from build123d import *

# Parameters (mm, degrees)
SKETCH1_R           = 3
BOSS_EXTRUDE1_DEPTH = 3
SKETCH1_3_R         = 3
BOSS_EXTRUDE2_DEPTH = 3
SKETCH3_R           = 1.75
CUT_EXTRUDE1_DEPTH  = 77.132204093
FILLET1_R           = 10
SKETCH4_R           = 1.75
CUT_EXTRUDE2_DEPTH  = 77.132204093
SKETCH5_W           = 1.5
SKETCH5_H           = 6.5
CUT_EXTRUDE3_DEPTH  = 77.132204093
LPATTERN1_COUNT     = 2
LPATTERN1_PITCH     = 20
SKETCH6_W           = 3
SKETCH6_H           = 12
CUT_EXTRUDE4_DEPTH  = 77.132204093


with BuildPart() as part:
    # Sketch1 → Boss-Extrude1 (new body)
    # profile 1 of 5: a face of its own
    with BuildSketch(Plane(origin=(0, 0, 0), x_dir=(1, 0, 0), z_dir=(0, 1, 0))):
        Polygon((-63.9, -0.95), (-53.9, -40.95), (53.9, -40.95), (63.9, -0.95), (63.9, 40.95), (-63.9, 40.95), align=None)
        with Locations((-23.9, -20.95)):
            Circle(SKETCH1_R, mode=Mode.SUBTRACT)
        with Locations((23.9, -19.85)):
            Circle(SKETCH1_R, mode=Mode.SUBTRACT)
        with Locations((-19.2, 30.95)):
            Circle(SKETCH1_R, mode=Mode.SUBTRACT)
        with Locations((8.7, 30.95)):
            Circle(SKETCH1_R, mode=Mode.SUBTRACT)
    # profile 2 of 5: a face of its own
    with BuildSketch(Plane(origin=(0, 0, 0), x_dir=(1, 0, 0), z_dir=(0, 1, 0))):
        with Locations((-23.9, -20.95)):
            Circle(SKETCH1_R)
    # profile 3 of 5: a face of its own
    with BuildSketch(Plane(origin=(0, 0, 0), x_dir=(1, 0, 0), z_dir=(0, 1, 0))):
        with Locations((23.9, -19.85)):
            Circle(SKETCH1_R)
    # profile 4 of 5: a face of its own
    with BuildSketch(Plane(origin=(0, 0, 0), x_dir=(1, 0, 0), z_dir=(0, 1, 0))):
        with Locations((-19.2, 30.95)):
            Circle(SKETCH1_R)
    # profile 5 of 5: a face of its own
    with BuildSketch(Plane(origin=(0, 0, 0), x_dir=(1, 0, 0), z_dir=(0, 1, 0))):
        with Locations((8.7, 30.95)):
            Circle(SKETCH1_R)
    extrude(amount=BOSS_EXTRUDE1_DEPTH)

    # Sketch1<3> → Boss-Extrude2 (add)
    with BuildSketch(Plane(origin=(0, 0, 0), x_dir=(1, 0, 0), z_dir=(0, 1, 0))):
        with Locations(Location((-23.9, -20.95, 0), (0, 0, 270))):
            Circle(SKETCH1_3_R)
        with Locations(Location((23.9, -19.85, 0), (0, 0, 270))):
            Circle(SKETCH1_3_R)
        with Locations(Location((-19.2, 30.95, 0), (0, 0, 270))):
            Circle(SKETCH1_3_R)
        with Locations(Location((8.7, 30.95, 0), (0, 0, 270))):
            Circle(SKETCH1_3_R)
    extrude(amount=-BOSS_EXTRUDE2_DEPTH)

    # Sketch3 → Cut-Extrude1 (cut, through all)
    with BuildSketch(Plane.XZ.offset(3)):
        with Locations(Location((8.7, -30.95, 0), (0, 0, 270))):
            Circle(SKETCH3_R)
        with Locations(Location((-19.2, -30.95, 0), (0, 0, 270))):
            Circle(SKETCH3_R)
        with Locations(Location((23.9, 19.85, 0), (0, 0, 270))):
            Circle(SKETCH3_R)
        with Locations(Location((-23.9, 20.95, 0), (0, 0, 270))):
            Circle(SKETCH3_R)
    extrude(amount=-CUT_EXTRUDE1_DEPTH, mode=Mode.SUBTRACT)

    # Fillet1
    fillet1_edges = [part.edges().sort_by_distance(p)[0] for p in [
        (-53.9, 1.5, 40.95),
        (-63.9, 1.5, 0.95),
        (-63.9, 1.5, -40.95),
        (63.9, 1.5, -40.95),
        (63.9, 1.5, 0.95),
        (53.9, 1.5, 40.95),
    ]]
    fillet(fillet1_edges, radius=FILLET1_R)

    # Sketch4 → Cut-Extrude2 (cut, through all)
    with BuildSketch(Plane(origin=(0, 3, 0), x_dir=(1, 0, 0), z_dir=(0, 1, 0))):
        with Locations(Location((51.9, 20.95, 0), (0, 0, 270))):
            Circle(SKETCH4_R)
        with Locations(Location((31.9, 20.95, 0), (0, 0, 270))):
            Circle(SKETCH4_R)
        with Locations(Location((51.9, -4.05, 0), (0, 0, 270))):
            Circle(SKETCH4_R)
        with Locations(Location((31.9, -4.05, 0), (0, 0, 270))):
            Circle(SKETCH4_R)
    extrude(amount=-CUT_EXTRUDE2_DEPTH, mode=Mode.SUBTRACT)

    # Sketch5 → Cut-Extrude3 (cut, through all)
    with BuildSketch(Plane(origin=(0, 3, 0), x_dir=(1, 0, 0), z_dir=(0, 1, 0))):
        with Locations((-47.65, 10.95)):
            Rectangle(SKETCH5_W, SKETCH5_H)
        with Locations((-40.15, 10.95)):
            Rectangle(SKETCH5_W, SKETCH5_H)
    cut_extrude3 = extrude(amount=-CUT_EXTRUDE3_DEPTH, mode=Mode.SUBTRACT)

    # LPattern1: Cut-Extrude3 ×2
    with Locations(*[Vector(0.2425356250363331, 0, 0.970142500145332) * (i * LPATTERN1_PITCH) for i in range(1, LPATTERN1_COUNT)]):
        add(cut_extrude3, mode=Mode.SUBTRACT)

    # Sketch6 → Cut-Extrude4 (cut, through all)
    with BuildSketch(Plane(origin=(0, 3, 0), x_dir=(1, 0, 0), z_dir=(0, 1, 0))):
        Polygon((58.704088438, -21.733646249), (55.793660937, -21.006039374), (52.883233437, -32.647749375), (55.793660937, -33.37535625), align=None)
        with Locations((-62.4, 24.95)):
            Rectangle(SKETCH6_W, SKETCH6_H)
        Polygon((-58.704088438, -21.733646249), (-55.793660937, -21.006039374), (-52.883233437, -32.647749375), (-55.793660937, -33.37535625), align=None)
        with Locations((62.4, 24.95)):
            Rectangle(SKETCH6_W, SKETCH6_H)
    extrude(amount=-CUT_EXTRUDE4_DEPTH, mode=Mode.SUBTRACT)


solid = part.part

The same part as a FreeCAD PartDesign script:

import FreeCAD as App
import Part
import Sketcher

V = App.Vector


def edges_at(feature, points):
    """Names of the edges that pass closest to the given points."""
    edges = feature.Shape.Edges
    near = lambda p: min(range(len(edges)), key=lambda i: edges[i].distToShape(Part.Vertex(*p))[0])
    return sorted({f"Edge{near(p) + 1}" for p in points})

doc = App.newDocument("Part")
body = doc.addObject("PartDesign::Body", "Body")

sketch1 = doc.addObject("Sketcher::SketchObject", "Sketch")
body.addObject(sketch1)
sketch1.AttachmentSupport = (doc.XZ_Plane, [""])
sketch1.MapMode = "FlatFace"
sketch1.addGeometry([
    Part.LineSegment(V(-64, 1, 0), V(-54, 41, 0)),
    Part.LineSegment(V(-54, 41, 0), V(54, 41, 0)),
    Part.LineSegment(V(54, 41, 0), V(64, 1, 0)),
    Part.LineSegment(V(64, 1, 0), V(64, -41, 0)),
    Part.LineSegment(V(64, -41, 0), V(-64, -41, 0)),
    Part.LineSegment(V(-64, -41, 0), V(-64, 1, 0)),
], False)
sketch1.addConstraint([
    Sketcher.Constraint("Coincident", 0, 2, 1, 1),
    Sketcher.Constraint("Coincident", 1, 2, 2, 1),
    Sketcher.Constraint("Coincident", 2, 2, 3, 1),
    Sketcher.Constraint("Coincident", 3, 2, 4, 1),
    Sketcher.Constraint("Coincident", 4, 2, 5, 1),
    Sketcher.Constraint("Coincident", 5, 2, 0, 1),
    Sketcher.Constraint("Horizontal", 1),
    Sketcher.Constraint("Vertical", 3),
    Sketcher.Constraint("Horizontal", 4),
    Sketcher.Constraint("Vertical", 5),
    Sketcher.Constraint("Symmetric", 2, 2, 5, 2, -2),
    Sketcher.Constraint("Equal", 0, 2),
    Sketcher.Constraint("DistanceX", 1, 1, 1, 2, 107.8),
    Sketcher.Constraint("DistanceX", 4, 2, 4, 1, 127.8),
    Sketcher.Constraint("DistanceY", 3, 2, 3, 1, 41.9),
    Sketcher.Constraint("DistanceY", 2, 2, 1, 2, 40.0),
    Sketcher.Constraint("DistanceY", -1, 1, 0, 2, 40.95),
])
pad1 = doc.addObject("PartDesign::Pad", "Pad")
body.addObject(pad1)
pad1.Profile = sketch1
pad1.Length = 3
pad1.Reversed = True

sketch2 = doc.addObject("Sketcher::SketchObject", "Sketch001")
body.addObject(sketch2)
sketch2.AttachmentSupport = (doc.XZ_Plane, [""])
sketch2.MapMode = "FlatFace"
sketch2.addGeometry([
    Part.Circle(V(-23.9, 20.9, 0), V(0, 0, 1), 3),
    Part.Circle(V(23.9, 19.9, 0), V(0, 0, 1), 3),
    Part.Circle(V(-19.2, -30.9, 0), V(0, 0, 1), 3),
    Part.Circle(V(8.7, -30.9, 0), V(0, 0, 1), 3),
], False)
sketch2.addConstraint([
    Sketcher.Constraint("Equal", 0, 1),
    Sketcher.Constraint("Equal", 1, 2),
    Sketcher.Constraint("Equal", 2, 3),
    Sketcher.Constraint("Horizontal", 2, 3, 3, 3),
    Sketcher.Constraint("Diameter", 0, 6.0),
    Sketcher.Constraint("DistanceX", 0, 3, -1, 1, 23.9),
    Sketcher.Constraint("DistanceX", -1, 1, 1, 3, 23.9),
    Sketcher.Constraint("DistanceX", 2, 3, -1, 1, 19.2),
    Sketcher.Constraint("DistanceX", -1, 1, 3, 3, 8.7),
    Sketcher.Constraint("DistanceY", 1, 3, 0, 3, 1.1),
    Sketcher.Constraint("DistanceY", 2, 3, 0, 3, 51.9),
    Sketcher.Constraint("DistanceY", -1, 1, 0, 3, 20.95),
])
pad2 = doc.addObject("PartDesign::Pad", "Pad001")
body.addObject(pad2)
pad2.Profile = sketch2
pad2.Length = 3

sketch3 = doc.addObject("Sketcher::SketchObject", "Sketch002")
body.addObject(sketch3)
sketch3.AttachmentSupport = (doc.XZ_Plane, [""])
sketch3.MapMode = "FlatFace"
sketch3.AttachmentOffset = App.Placement(V(0, 0, 3), App.Rotation())
sketch3.addGeometry([
    Part.Circle(V(8.7, -30.9, 0), V(0, 0, 1), 1.8),
    Part.Circle(V(-19.2, -30.9, 0), V(0, 0, 1), 1.8),
    Part.Circle(V(23.9, 19.9, 0), V(0, 0, 1), 1.8),
    Part.Circle(V(-23.9, 20.9, 0), V(0, 0, 1), 1.8),
], False)
sketch3.addConstraint([
    Sketcher.Constraint("Equal", 0, 1),
    Sketcher.Constraint("Equal", 1, 2),
    Sketcher.Constraint("Equal", 2, 3),
    Sketcher.Constraint("Horizontal", 0, 3, 1, 3),
    Sketcher.Constraint("Diameter", 0, 3.5),
    Sketcher.Constraint("DistanceX", -1, 1, 0, 3, 8.7),
    Sketcher.Constraint("DistanceX", 1, 3, -1, 1, 19.2),
    Sketcher.Constraint("DistanceX", -1, 1, 2, 3, 23.9),
    Sketcher.Constraint("DistanceX", 3, 3, -1, 1, 23.9),
    Sketcher.Constraint("DistanceY", 0, 3, 2, 3, 50.8),
    Sketcher.Constraint("DistanceY", 2, 3, 3, 3, 1.1),
    Sketcher.Constraint("DistanceY", 0, 3, -1, 1, 30.95),
])
pocket1 = doc.addObject("PartDesign::Pocket", "Pocket")
body.addObject(pocket1)
pocket1.Profile = sketch3
pocket1.Type = "ThroughAll"
doc.recompute()

fillet = doc.addObject("PartDesign::Fillet", "Fillet")
body.addObject(fillet)
fillet.Base = (pocket1, edges_at(pocket1, [
    (-53.9, 1.5, 40.95),
    (-63.9, 1.5, 0.95),
    (-63.9, 1.5, -40.95),
    (63.9, 1.5, -40.95),
    (63.9, 1.5, 0.95),
    (53.9, 1.5, 40.95),
]))
fillet.Radius = 10

sketch4 = doc.addObject("Sketcher::SketchObject", "Sketch003")
body.addObject(sketch4)
sketch4.AttachmentSupport = (doc.XZ_Plane, [""])
sketch4.MapMode = "FlatFace"
sketch4.AttachmentOffset = App.Placement(V(0, 0, -3), App.Rotation())
sketch4.addGeometry([
    Part.Circle(V(51.9, -20.9, 0), V(0, 0, 1), 1.8),
    Part.Circle(V(31.9, -20.9, 0), V(0, 0, 1), 1.8),
    Part.Circle(V(51.9, 4, 0), V(0, 0, 1), 1.8),
    Part.Circle(V(31.9, 4, 0), V(0, 0, 1), 1.8),
], False)
sketch4.addConstraint([
    Sketcher.Constraint("Equal", 0, 1),
    Sketcher.Constraint("Equal", 1, 2),
    Sketcher.Constraint("Equal", 2, 3),
    Sketcher.Constraint("Horizontal", 0, 3, 1, 3),
    Sketcher.Constraint("Horizontal", 2, 3, 3, 3),
    Sketcher.Constraint("Vertical", 0, 3, 2, 3),
    Sketcher.Constraint("Vertical", 1, 3, 3, 3),
    Sketcher.Constraint("Diameter", 0, 3.5),
    Sketcher.Constraint("DistanceX", 1, 3, 0, 3, 20.0),
    Sketcher.Constraint("DistanceY", 0, 3, 2, 3, 25.0),
    Sketcher.Constraint("DistanceX", -1, 1, 0, 3, 51.9),
    Sketcher.Constraint("DistanceY", 0, 3, -1, 1, 20.95),
])
pocket2 = doc.addObject("PartDesign::Pocket", "Pocket001")
body.addObject(pocket2)
pocket2.Profile = sketch4
pocket2.Type = "ThroughAll"
pocket2.Reversed = True

sketch5 = doc.addObject("Sketcher::SketchObject", "Sketch004")
body.addObject(sketch5)
sketch5.AttachmentSupport = (doc.XZ_Plane, [""])
sketch5.MapMode = "FlatFace"
sketch5.AttachmentOffset = App.Placement(V(0, 0, -3), App.Rotation())
sketch5.addGeometry([
    Part.LineSegment(V(-48.4, -14.2, 0), V(-48.4, -7.7, 0)),
    Part.LineSegment(V(-48.4, -7.7, 0), V(-46.9, -7.7, 0)),
    Part.LineSegment(V(-46.9, -7.7, 0), V(-46.9, -14.2, 0)),
    Part.LineSegment(V(-46.9, -14.2, 0), V(-48.4, -14.2, 0)),
    Part.LineSegment(V(-40.9, -14.2, 0), V(-40.9, -7.7, 0)),
    Part.LineSegment(V(-40.9, -7.7, 0), V(-39.4, -7.7, 0)),
    Part.LineSegment(V(-39.4, -7.7, 0), V(-39.4, -14.2, 0)),
    Part.LineSegment(V(-39.4, -14.2, 0), V(-40.9, -14.2, 0)),
], False)
sketch5.addConstraint([
    Sketcher.Constraint("Coincident", 0, 2, 1, 1),
    Sketcher.Constraint("Coincident", 1, 2, 2, 1),
    Sketcher.Constraint("Coincident", 2, 2, 3, 1),
    Sketcher.Constraint("Coincident", 3, 2, 0, 1),
    Sketcher.Constraint("Coincident", 4, 2, 5, 1),
    Sketcher.Constraint("Coincident", 5, 2, 6, 1),
    Sketcher.Constraint("Coincident", 6, 2, 7, 1),
    Sketcher.Constraint("Coincident", 7, 2, 4, 1),
    Sketcher.Constraint("Vertical", 0),
    Sketcher.Constraint("Horizontal", 1),
    Sketcher.Constraint("Vertical", 2),
    Sketcher.Constraint("Horizontal", 3),
    Sketcher.Constraint("Vertical", 4),
    Sketcher.Constraint("Horizontal", 5),
    Sketcher.Constraint("Vertical", 6),
    Sketcher.Constraint("Horizontal", 7),
    Sketcher.Constraint("Horizontal", 1, 2, 4, 2),
    Sketcher.Constraint("Horizontal", 3, 2, 6, 2),
    Sketcher.Constraint("Equal", 3, 5),
    Sketcher.Constraint("DistanceX", 1, 1, 1, 2, 1.5),
    Sketcher.Constraint("DistanceY", 0, 1, 0, 2, 6.5),
    Sketcher.Constraint("DistanceX", 1, 2, 4, 2, 6.0),
    Sketcher.Constraint("DistanceX", 0, 2, -1, 1, 48.4),
    Sketcher.Constraint("DistanceY", 0, 2, -1, 1, 7.7),
])
pocket3 = doc.addObject("PartDesign::Pocket", "Pocket002")
body.addObject(pocket3)
pocket3.Profile = sketch5
pocket3.Type = "ThroughAll"
pocket3.Reversed = True
doc.recompute()

datumline = doc.addObject("PartDesign::Line", "DatumLine")
body.addObject(datumline)
datumline.Placement = App.Placement(V(0, 0, 0), App.Rotation(V(0, 0, 1), V(0.242535625, 0, 0.9701425)))
linearpattern = doc.addObject("PartDesign::LinearPattern", "LinearPattern")
body.addObject(linearpattern)
linearpattern.Originals = [pocket3]
linearpattern.Direction = (datumline, [""])
linearpattern.Mode = "offset"
linearpattern.Offset = 20
linearpattern.Occurrences = 2
body.Tip = linearpattern

sketch6 = doc.addObject("Sketcher::SketchObject", "Sketch005")
body.addObject(sketch6)
sketch6.AttachmentSupport = (doc.XZ_Plane, [""])
sketch6.MapMode = "FlatFace"
sketch6.AttachmentOffset = App.Placement(V(0, 0, -3), App.Rotation())
sketch6.addGeometry([
    Part.LineSegment(V(58.7, 21.7, 0), V(55.8, 21, 0)),
    Part.LineSegment(V(55.8, 21, 0), V(52.9, 32.6, 0)),
    Part.LineSegment(V(52.9, 32.6, 0), V(55.8, 33.4, 0)),
    Part.LineSegment(V(55.8, 33.4, 0), V(58.7, 21.7, 0)),
    Part.LineSegment(V(-63.9, -30.9, 0), V(-63.9, -18.9, 0)),
    Part.LineSegment(V(-63.9, -18.9, 0), V(-60.9, -18.9, 0)),
    Part.LineSegment(V(-60.9, -18.9, 0), V(-60.9, -30.9, 0)),
    Part.LineSegment(V(-60.9, -30.9, 0), V(-63.9, -30.9, 0)),
    Part.LineSegment(V(-55.8, 21, 0), V(-58.7, 21.7, 0)),
    Part.LineSegment(V(-58.7, 21.7, 0), V(-55.8, 33.4, 0)),
    Part.LineSegment(V(-55.8, 33.4, 0), V(-52.9, 32.6, 0)),
    Part.LineSegment(V(-52.9, 32.6, 0), V(-55.8, 21, 0)),
    Part.LineSegment(V(60.9, -30.9, 0), V(60.9, -18.9, 0)),
    Part.LineSegment(V(60.9, -18.9, 0), V(63.9, -18.9, 0)),
    Part.LineSegment(V(63.9, -18.9, 0), V(63.9, -30.9, 0)),
    Part.LineSegment(V(63.9, -30.9, 0), V(60.9, -30.9, 0)),
], False)
sketch6.addConstraint([
    Sketcher.Constraint("Coincident", 0, 2, 1, 1),
    Sketcher.Constraint("Coincident", 1, 2, 2, 1),
    Sketcher.Constraint("Coincident", 2, 2, 3, 1),
    Sketcher.Constraint("Coincident", 3, 2, 0, 1),
    Sketcher.Constraint("Coincident", 4, 2, 5, 1),
    Sketcher.Constraint("Coincident", 5, 2, 6, 1),
    Sketcher.Constraint("Coincident", 6, 2, 7, 1),
    Sketcher.Constraint("Coincident", 7, 2, 4, 1),
    Sketcher.Constraint("Coincident", 8, 2, 9, 1),
    Sketcher.Constraint("Coincident", 9, 2, 10, 1),
    Sketcher.Constraint("Coincident", 10, 2, 11, 1),
    Sketcher.Constraint("Coincident", 11, 2, 8, 1),
    Sketcher.Constraint("Coincident", 12, 2, 13, 1),
    Sketcher.Constraint("Coincident", 13, 2, 14, 1),
    Sketcher.Constraint("Coincident", 14, 2, 15, 1),
    Sketcher.Constraint("Coincident", 15, 2, 12, 1),
    Sketcher.Constraint("Vertical", 4),
    Sketcher.Constraint("Horizontal", 5),
    Sketcher.Constraint("Vertical", 6),
    Sketcher.Constraint("Horizontal", 7),
    Sketcher.Constraint("Vertical", 12),
    Sketcher.Constraint("Horizontal", 13),
    Sketcher.Constraint("Vertical", 14),
    Sketcher.Constraint("Horizontal", 15),
    Sketcher.Constraint("Symmetric", 3, 2, 8, 2, -2),
    Sketcher.Constraint("Symmetric", 2, 2, 9, 2, -2),
    Sketcher.Constraint("Symmetric", 1, 2, 10, 2, -2),
    Sketcher.Constraint("Symmetric", 0, 2, 11, 2, -2),
    Sketcher.Constraint("Symmetric", 5, 2, 12, 2, -2),
    Sketcher.Constraint("Symmetric", 7, 2, 14, 2, -2),
    Sketcher.Constraint("Perpendicular", 0, 1),
    Sketcher.Constraint("Perpendicular", 1, 2),
    Sketcher.Constraint("Perpendicular", 2, 3),
    Sketcher.Constraint("Vertical", 0, 2, 2, 2),
    Sketcher.Constraint("DistanceX", 5, 1, 5, 2, 3.0),
    Sketcher.Constraint("DistanceY", 4, 1, 4, 2, 12.0),
    Sketcher.Constraint("Distance", 0, 3.0),
    Sketcher.Constraint("Distance", 1, 12.0),
    Sketcher.Constraint("DistanceX", 4, 2, -1, 1, 63.9),
    Sketcher.Constraint("DistanceY", 4, 2, -1, 1, 18.95),
    Sketcher.Constraint("DistanceX", -1, 1, 0, 2, 55.793661),
    Sketcher.Constraint("DistanceY", -1, 1, 0, 2, 21.006039),
])
pocket4 = doc.addObject("PartDesign::Pocket", "Pocket003")
body.addObject(pocket4)
pocket4.Profile = sketch6
pocket4.Type = "ThroughAll"
pocket4.Reversed = True

doc.recompute()
